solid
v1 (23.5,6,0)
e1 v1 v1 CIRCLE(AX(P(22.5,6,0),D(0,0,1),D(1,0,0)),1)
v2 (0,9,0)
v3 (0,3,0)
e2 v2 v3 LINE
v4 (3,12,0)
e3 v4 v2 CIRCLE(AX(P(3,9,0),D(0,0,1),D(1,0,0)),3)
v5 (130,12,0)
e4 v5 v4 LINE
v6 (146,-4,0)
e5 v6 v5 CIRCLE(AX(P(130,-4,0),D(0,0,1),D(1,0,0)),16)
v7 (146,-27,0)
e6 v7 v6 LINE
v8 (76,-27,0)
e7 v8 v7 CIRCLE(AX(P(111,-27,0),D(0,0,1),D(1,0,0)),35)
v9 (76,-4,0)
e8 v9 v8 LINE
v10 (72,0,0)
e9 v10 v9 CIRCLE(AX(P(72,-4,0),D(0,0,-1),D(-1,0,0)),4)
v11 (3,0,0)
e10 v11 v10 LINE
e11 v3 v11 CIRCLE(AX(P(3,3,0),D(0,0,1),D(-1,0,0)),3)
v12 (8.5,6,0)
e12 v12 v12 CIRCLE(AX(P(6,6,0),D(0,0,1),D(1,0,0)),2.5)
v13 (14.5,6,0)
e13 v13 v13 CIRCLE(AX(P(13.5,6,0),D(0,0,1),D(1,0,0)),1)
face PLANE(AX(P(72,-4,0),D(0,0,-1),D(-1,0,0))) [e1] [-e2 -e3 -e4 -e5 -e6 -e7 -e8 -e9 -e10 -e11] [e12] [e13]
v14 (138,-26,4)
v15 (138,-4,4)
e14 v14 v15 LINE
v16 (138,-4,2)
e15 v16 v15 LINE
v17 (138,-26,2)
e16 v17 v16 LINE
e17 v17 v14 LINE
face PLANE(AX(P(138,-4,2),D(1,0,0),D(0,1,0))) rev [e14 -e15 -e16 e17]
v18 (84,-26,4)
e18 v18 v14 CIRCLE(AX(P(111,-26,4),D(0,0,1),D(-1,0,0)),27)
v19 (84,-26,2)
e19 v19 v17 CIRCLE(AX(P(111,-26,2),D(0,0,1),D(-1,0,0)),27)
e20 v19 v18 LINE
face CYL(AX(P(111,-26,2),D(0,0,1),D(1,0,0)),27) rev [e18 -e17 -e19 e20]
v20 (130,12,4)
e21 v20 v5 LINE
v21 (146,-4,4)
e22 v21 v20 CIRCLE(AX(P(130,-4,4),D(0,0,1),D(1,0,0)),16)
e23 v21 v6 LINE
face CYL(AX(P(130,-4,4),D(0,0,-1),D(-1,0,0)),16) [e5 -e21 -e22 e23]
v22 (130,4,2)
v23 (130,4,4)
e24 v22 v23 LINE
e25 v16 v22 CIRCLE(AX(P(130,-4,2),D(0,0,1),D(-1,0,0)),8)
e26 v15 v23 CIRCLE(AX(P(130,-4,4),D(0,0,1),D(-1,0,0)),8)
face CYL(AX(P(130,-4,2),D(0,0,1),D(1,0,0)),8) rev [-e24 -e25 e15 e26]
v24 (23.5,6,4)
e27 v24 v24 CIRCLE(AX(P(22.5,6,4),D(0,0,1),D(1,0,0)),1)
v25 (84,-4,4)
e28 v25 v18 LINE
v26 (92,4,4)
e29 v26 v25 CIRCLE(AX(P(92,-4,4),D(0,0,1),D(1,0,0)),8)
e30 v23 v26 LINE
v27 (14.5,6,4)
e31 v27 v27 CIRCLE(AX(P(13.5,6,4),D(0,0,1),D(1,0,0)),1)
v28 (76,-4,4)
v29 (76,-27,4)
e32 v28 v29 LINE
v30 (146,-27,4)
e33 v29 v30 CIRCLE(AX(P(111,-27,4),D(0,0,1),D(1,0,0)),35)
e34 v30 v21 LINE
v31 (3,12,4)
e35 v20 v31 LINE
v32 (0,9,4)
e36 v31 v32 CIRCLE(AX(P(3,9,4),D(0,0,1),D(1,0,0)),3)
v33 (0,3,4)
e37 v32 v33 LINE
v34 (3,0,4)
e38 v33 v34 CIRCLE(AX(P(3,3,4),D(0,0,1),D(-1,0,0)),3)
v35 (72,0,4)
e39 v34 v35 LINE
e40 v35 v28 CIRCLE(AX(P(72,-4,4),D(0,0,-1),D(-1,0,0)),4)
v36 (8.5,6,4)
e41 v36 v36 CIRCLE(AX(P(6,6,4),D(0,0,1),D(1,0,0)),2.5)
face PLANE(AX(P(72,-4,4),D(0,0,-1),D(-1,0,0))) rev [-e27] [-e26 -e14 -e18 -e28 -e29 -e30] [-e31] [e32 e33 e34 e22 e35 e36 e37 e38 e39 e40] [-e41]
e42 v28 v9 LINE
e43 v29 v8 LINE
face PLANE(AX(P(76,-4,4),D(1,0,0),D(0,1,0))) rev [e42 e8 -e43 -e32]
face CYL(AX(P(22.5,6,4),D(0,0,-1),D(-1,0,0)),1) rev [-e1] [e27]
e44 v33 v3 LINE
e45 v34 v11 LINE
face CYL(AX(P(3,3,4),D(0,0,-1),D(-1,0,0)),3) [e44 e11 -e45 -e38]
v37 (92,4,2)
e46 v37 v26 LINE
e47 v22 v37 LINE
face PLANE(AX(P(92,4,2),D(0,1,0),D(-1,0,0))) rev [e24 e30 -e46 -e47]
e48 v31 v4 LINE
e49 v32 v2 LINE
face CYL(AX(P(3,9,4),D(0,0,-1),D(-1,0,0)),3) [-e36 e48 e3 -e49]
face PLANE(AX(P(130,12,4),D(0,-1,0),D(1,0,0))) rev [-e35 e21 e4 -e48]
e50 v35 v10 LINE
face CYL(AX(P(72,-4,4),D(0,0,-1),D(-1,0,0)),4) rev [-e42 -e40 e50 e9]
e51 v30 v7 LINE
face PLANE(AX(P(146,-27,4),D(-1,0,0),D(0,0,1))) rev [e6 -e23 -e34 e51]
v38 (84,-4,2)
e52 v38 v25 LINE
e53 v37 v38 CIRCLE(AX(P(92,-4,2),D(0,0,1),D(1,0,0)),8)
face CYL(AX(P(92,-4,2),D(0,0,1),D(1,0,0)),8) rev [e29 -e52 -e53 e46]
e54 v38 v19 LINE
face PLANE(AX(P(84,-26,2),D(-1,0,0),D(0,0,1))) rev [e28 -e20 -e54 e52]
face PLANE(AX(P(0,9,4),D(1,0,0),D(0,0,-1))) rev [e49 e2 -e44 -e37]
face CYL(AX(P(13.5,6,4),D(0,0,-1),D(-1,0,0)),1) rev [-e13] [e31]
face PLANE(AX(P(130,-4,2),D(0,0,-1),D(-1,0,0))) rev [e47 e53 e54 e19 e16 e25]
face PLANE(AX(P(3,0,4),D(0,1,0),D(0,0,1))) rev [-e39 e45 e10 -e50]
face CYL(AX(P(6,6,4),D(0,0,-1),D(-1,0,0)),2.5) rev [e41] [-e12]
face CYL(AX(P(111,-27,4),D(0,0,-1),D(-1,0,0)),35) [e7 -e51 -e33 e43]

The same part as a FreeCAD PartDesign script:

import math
import FreeCAD as App
import Part
import Sketcher

V = App.Vector
Q = App.Units.Quantity

doc = App.newDocument("Part")
params = doc.addObject("Spreadsheet::Sheet", "Params")
for row, (alias, value) in enumerate([
    ("sketch1_diameter", "5 mm"),
    ("sketch1_diameter2", "2 mm"),
    ("sketch1_radius", "4 mm"),
    ("sketch1_radius2", "35 mm"),
    ("sketch1_radius3", "16 mm"),
    ("pad1_length", "4 mm"),
    ("sketch2_radius", "8 mm"),
    ("sketch2_radius2", "27 mm"),
    ("sketch2_height", "22 mm"),
    ("pocket1_length", "2 mm"),
], start=1):
    params.set(f"A{row}", alias)
    params.set(f"B{row}", "=" + value)
    params.setAlias(f"B{row}", alias)

body = doc.addObject("PartDesign::Body", "Body")

# Sketch on XY plane
sketch1 = body.newObject("Sketcher::SketchObject", "Sketch")
sketch1.AttachmentSupport = (doc.getObject("XY_Plane"), [""])
sketch1.MapMode = "FlatFace"
sketch1.addGeometry([
    Part.LineSegment(V(3, 0, 0), V(72, 0, 0)),  # 0
    Part.ArcOfCircle(Part.Circle(V(72, -4, 0), V(0, 0, 1), 4), math.radians(0), math.radians(90)),  # 1
    Part.LineSegment(V(76, -4, 0), V(76, -27, 0)),  # 2
    Part.ArcOfCircle(Part.Circle(V(111, -27, 0), V(0, 0, 1), 35), math.radians(180), math.radians(360)),  # 3
    Part.LineSegment(V(146, -27, 0), V(146, -4, 0)),  # 4
    Part.ArcOfCircle(Part.Circle(V(130, -4, 0), V(0, 0, 1), 16), math.radians(0), math.radians(90)),  # 5
    Part.LineSegment(V(130, 12, 0), V(3, 12, 0)),  # 6
    Part.ArcOfCircle(Part.Circle(V(3, 9, 0), V(0, 0, 1), 3), math.radians(90), math.radians(180)),  # 7
    Part.LineSegment(V(0, 9, 0), V(0, 3, 0)),  # 8
    Part.ArcOfCircle(Part.Circle(V(3, 3, 0), V(0, 0, 1), 3), math.radians(180), math.radians(270)),  # 9
    Part.Circle(V(6, 6, 0), V(0, 0, 1), 2.5),  # 10
    Part.Circle(V(13.5, 6, 0), V(0, 0, 1), 1),  # 11
    Part.Circle(V(22.5, 6, 0), V(0, 0, 1), 1),  # 12
], False)
sketch1.addConstraint([
    Sketcher.Constraint("Tangent", 0, 2, 1, 2),
    Sketcher.Constraint("Tangent", 1, 1, 2, 1),
    Sketcher.Constraint("Tangent", 2, 2, 3, 1),
    Sketcher.Constraint("Tangent", 3, 2, 4, 1),
    Sketcher.Constraint("Tangent", 4, 2, 5, 1),
    Sketcher.Constraint("Tangent", 5, 2, 6, 1),
    Sketcher.Constraint("Tangent", 6, 2, 7, 1),
    Sketcher.Constraint("Tangent", 7, 2, 8, 1),
    Sketcher.Constraint("Tangent", 8, 2, 9, 1),
    Sketcher.Constraint("Tangent", 9, 2, 0, 1),
    Sketcher.Constraint("Horizontal", 0),
    Sketcher.Constraint("Vertical", 2),
    Sketcher.Constraint("Vertical", 4),
    Sketcher.Constraint("Horizontal", 6),
    Sketcher.Constraint("Vertical", 8),
    Sketcher.Constraint("Equal", 7, 9),
    Sketcher.Constraint("Equal", 11, 12),
    Sketcher.Constraint("PointOnObject", 0, 2, -1),
    Sketcher.Constraint("PointOnObject", 7, 2, -2),
    Sketcher.Constraint("Horizontal", 1, 3, 5, 3),
    Sketcher.Constraint("Horizontal", 10, 3, 11, 3),
    Sketcher.Constraint("Horizontal", 11, 3, 12, 3),
    Sketcher.Constraint("Diameter", 10, Q("5 mm")),
    Sketcher.Constraint("Diameter", 11, Q("2 mm")),
    Sketcher.Constraint("Radius", 1, Q("4 mm")),
    Sketcher.Constraint("Radius", 3, Q("35 mm")),
    Sketcher.Constraint("Radius", 5, Q("16 mm")),
    Sketcher.Constraint("Radius", 7, Q("3 mm")),
    Sketcher.Constraint("DistanceX", 0, 1, 0, 2, Q("69 mm")),
    Sketcher.Constraint("DistanceY", 2, 2, 2, 1, Q("23 mm")),
    Sketcher.Constraint("DistanceX", -1, 1, 10, 3, Q("6 mm")),
    Sketcher.Constraint("DistanceY", -1, 1, 10, 3, Q("6 mm")),
    Sketcher.Constraint("DistanceX", 11, 3, 12, 3, Q("9 mm")),
    Sketcher.Constraint("DistanceX", -1, 1, 11, 3, Q("13.5 mm")),
])
sketch1.setExpression("Constraints[22]", "Params.sketch1_diameter")
sketch1.setExpression("Constraints[23]", "Params.sketch1_diameter2")
sketch1.setExpression("Constraints[24]", "Params.sketch1_radius")
sketch1.setExpression("Constraints[25]", "Params.sketch1_radius2")
sketch1.setExpression("Constraints[26]", "Params.sketch1_radius3")
pad1 = body.newObject("PartDesign::Pad", "Pad")
pad1.Profile = sketch1
pad1.setExpression("Length", "Params.pad1_length")

# Sketch on XY plane
sketch2 = body.newObject("Sketcher::SketchObject", "Sketch001")
sketch2.AttachmentSupport = (doc.getObject("XY_Plane"), [""])
sketch2.MapMode = "FlatFace"
sketch2.AttachmentOffset = App.Placement(V(0, 0, 4), App.Rotation())
sketch2.addGeometry([
    Part.LineSegment(V(130, 4, 0), V(92, 4, 0)),  # 0
    Part.ArcOfCircle(Part.Circle(V(92, -4, 0), V(0, 0, 1), 8), math.radians(90), math.radians(180)),  # 1
    Part.LineSegment(V(84, -4, 0), V(84, -26, 0)),  # 2
    Part.ArcOfCircle(Part.Circle(V(111, -26, 0), V(0, 0, 1), 27), math.radians(180), math.radians(360)),  # 3
    Part.LineSegment(V(138, -26, 0), V(138, -4, 0)),  # 4
    Part.ArcOfCircle(Part.Circle(V(130, -4, 0), V(0, 0, 1), 8), math.radians(0), math.radians(90)),  # 5
], False)
sketch2.addConstraint([
    Sketcher.Constraint("Tangent", 0, 2, 1, 1),
    Sketcher.Constraint("Tangent", 1, 2, 2, 1),
    Sketcher.Constraint("Tangent", 2, 2, 3, 1),
    Sketcher.Constraint("Tangent", 3, 2, 4, 1),
    Sketcher.Constraint("Tangent", 4, 2, 5, 1),
    Sketcher.Constraint("Tangent", 5, 2, 0, 1),
    Sketcher.Constraint("Horizontal", 0),
    Sketcher.Constraint("Vertical", 2),
    Sketcher.Constraint("Vertical", 4),
    Sketcher.Constraint("Equal", 1, 5),
    Sketcher.Constraint("Radius", 1, Q("8 mm")),
    Sketcher.Constraint("Radius", 3, Q("27 mm")),
    Sketcher.Constraint("DistanceY", 2, 2, 2, 1, Q("22 mm")),
    Sketcher.Constraint("DistanceX", -1, 1, 1, 3, Q("92 mm")),
    Sketcher.Constraint("DistanceY", 1, 3, -1, 1, Q("4 mm")),
])
sketch2.setExpression("Constraints[10]", "Params.sketch2_radius")
sketch2.setExpression("Constraints[11]", "Params.sketch2_radius2")
sketch2.setExpression("Constraints[12]", "Params.sketch2_height")
pocket1 = body.newObject("PartDesign::Pocket", "Pocket")
pocket1.Profile = sketch2
pocket1.setExpression("Length", "Params.pocket1_length")

doc.recompute()
